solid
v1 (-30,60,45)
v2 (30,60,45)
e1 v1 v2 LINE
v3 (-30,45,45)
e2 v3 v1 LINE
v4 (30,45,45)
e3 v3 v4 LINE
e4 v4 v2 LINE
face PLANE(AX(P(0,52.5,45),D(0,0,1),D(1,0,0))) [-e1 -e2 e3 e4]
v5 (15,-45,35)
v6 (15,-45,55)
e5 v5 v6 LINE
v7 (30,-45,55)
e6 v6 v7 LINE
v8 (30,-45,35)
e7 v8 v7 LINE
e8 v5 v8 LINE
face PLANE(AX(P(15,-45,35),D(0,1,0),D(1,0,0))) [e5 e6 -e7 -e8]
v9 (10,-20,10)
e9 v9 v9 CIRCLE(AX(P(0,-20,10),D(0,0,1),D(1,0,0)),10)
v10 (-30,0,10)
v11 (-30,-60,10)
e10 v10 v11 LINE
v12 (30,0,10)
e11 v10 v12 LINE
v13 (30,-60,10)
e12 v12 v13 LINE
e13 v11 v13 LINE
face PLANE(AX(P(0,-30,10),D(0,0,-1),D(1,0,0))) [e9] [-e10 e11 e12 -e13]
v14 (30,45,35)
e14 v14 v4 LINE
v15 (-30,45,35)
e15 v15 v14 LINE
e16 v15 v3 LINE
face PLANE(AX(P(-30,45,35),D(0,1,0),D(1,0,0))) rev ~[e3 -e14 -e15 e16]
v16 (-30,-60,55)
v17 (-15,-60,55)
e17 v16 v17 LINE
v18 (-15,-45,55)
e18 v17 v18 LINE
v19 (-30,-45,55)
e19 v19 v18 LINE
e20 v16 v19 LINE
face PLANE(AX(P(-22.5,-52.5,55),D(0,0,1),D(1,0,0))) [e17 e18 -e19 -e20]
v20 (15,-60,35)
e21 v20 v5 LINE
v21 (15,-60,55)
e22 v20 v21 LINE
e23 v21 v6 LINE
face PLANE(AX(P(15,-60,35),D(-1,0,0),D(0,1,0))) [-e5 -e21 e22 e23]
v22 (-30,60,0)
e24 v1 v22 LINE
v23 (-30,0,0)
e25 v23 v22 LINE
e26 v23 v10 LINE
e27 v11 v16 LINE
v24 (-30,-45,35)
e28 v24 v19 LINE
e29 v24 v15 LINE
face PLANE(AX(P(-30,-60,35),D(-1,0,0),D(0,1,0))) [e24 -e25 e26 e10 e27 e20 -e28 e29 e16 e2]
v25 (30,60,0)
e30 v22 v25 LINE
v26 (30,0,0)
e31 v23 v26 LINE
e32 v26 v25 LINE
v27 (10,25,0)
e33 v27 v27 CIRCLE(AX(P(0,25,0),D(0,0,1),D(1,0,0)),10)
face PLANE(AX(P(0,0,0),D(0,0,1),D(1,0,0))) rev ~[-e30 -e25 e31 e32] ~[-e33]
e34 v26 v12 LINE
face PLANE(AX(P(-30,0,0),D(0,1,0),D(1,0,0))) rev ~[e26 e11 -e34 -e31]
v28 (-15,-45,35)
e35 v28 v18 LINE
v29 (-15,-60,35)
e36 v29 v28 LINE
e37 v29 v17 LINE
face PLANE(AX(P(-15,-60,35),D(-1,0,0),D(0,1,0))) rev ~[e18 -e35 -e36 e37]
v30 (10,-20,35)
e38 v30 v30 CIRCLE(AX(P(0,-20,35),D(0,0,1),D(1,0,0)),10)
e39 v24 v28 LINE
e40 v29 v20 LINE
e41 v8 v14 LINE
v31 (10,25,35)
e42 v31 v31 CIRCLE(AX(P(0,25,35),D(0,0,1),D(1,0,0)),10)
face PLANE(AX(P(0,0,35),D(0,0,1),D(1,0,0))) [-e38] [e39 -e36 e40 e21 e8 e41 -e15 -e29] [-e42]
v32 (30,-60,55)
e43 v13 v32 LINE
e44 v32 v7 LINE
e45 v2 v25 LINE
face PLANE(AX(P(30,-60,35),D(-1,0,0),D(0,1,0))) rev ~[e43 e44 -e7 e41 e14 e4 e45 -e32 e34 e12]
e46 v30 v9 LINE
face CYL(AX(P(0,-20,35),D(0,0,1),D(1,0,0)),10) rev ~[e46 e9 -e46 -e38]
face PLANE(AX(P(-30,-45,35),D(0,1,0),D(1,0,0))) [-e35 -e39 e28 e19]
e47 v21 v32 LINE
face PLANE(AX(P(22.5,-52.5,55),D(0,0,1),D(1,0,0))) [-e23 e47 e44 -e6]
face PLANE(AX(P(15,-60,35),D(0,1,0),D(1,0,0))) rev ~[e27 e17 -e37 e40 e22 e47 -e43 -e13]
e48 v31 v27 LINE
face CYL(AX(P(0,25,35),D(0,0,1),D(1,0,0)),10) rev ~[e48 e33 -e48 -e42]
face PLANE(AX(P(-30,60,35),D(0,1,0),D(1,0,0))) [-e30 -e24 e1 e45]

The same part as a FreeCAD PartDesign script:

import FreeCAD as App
import Part
import Sketcher

V = App.Vector
Q = App.Units.Quantity


def add_polygon(sketch, points):
    """Adds a closed chain of lines whose ends are joined by coincident constraints."""
    first, n = sketch.GeometryCount, len(points)
    for a, b in zip(points, points[1:] + points[:1]):
        sketch.addGeometry(Part.LineSegment(App.Vector(*a, 0), App.Vector(*b, 0)), False)
    for i in range(n):
        sketch.addConstraint(Sketcher.Constraint("Coincident", first + i, 2, first + (i + 1) % n, 1))

doc = App.newDocument("Part")
body = doc.addObject("PartDesign::Body", "Body")

# Sketch on XY plane
sketch1 = body.newObject("Sketcher::SketchObject", "Sketch")
sketch1.AttachmentSupport = (doc.getObject("XY_Plane"), [""])
sketch1.MapMode = "FlatFace"
add_polygon(sketch1, [(-30, 60), (-30, -60), (30, -60), (30, 60)])  # lines 0-3
sketch1.addConstraint([
    Sketcher.Constraint("Vertical", 0),
    Sketcher.Constraint("Horizontal", 1),
    Sketcher.Constraint("Vertical", 2),
    Sketcher.Constraint("Horizontal", 3),
    Sketcher.Constraint("Symmetric", 0, 2, 2, 2, -1, 1),
    Sketcher.Constraint("DistanceX", 1, 1, 1, 2, Q("60 mm")),
    Sketcher.Constraint("DistanceY", 0, 2, 0, 1, Q("120 mm")),
])
pad1 = body.newObject("PartDesign::Pad", "Pad")
pad1.Profile = sketch1
pad1.Length = 35

# Sketch on XY plane
sketch2 = body.newObject("Sketcher::SketchObject", "Sketch001")
sketch2.AttachmentSupport = (doc.getObject("XY_Plane"), [""])
sketch2.MapMode = "FlatFace"
sketch2.AttachmentOffset = App.Placement(V(0, 0, 35), App.Rotation())
add_polygon(sketch2, [(-30, 60), (-30, 45), (30, 45), (30, 60)])  # lines 0-3
sketch2.addConstraint([
    Sketcher.Constraint("Vertical", 0),
    Sketcher.Constraint("Horizontal", 1),
    Sketcher.Constraint("Vertical", 2),
    Sketcher.Constraint("Horizontal", 3),
    Sketcher.Constraint("DistanceX", 1, 1, 1, 2, Q("60 mm")),
    Sketcher.Constraint("DistanceY", 0, 2, 0, 1, Q("15 mm")),
    Sketcher.Constraint("DistanceX", 0, 2, -1, 1, Q("30 mm")),
    Sketcher.Constraint("DistanceY", -1, 1, 0, 2, Q("45 mm")),
])
pad2 = body.newObject("PartDesign::Pad", "Pad001")
pad2.Profile = sketch2
pad2.Length = 10

# Sketch on XY plane
sketch3 = body.newObject("Sketcher::SketchObject", "Sketch002")
sketch3.AttachmentSupport = (doc.getObject("XY_Plane"), [""])
sketch3.MapMode = "FlatFace"
add_polygon(sketch3, [(-30, -60), (-30, 0), (30, 0), (30, -60)])  # lines 0-3
sketch3.addConstraint([
    Sketcher.Constraint("Vertical", 0),
    Sketcher.Constraint("Horizontal", 1),
    Sketcher.Constraint("Vertical", 2),
    Sketcher.Constraint("Horizontal", 3),
    Sketcher.Constraint("Symmetric", 0, 2, 1, 2, -1, 1),
    Sketcher.Constraint("Equal", 3, 0),
    Sketcher.Constraint("DistanceX", 1, 1, 1, 2, Q("60 mm")),
])
pocket1 = body.newObject("PartDesign::Pocket", "Pocket")
pocket1.Profile = sketch3
pocket1.Length = 10
pocket1.Reversed = True

# Sketch on XY plane
sketch4 = body.newObject("Sketcher::SketchObject", "Sketch003")
sketch4.AttachmentSupport = (doc.getObject("XY_Plane"), [""])
sketch4.MapMode = "FlatFace"
sketch4.AttachmentOffset = App.Placement(V(0, 0, 35), App.Rotation())
add_polygon(sketch4, [(-30, -45), (-30, -60), (-15, -60), (-15, -45)])  # lines 0-3
sketch4.addConstraint([
    Sketcher.Constraint("Vertical", 0),
    Sketcher.Constraint("Horizontal", 1),
    Sketcher.Constraint("Vertical", 2),
    Sketcher.Constraint("Horizontal", 3),
    Sketcher.Constraint("Equal", 3, 0),
    Sketcher.Constraint("DistanceX", 1, 1, 1, 2, Q("15 mm")),
    Sketcher.Constraint("DistanceX", 0, 2, -1, 1, Q("30 mm")),
    Sketcher.Constraint("DistanceY", 0, 2, -1, 1, Q("60 mm")),
])
pad3 = body.newObject("PartDesign::Pad", "Pad002")
pad3.Profile = sketch4
pad3.Length = 20

# Sketch on XY plane
sketch5 = body.newObject("Sketcher::SketchObject", "Sketch004")
sketch5.AttachmentSupport = (doc.getObject("XY_Plane"), [""])
sketch5.MapMode = "FlatFace"
sketch5.AttachmentOffset = App.Placement(V(0, 0, 35), App.Rotation())
add_polygon(sketch5, [(15, -45), (15, -60), (30, -60), (30, -45)])  # lines 0-3
sketch5.addConstraint([
    Sketcher.Constraint("Vertical", 0),
    Sketcher.Constraint("Horizontal", 1),
    Sketcher.Constraint("Vertical", 2),
    Sketcher.Constraint("Horizontal", 3),
    Sketcher.Constraint("Equal", 3, 0),
    Sketcher.Constraint("DistanceX", 1, 1, 1, 2, Q("15 mm")),
    Sketcher.Constraint("DistanceX", -1, 1, 0, 2, Q("15 mm")),
    Sketcher.Constraint("DistanceY", 0, 2, -1, 1, Q("60 mm")),
])
pad4 = body.newObject("PartDesign::Pad", "Pad003")
pad4.Profile = sketch5
pad4.Length = 20

# Sketch on XY plane
sketch6 = body.newObject("Sketcher::SketchObject", "Sketch005")
sketch6.AttachmentSupport = (doc.getObject("XY_Plane"), [""])
sketch6.MapMode = "FlatFace"
sketch6.AttachmentOffset = App.Placement(V(0, 0, 35), App.Rotation())
sketch6.addGeometry(Part.Circle(V(0, 25, 0), V(0, 0, 1), 10), False)
sketch6.addConstraint([
    Sketcher.Constraint("PointOnObject", 0, 3, -2),
    Sketcher.Constraint("Diameter", 0, Q("20 mm")),
    Sketcher.Constraint("DistanceY", -1, 1, 0, 3, Q("25 mm")),
])
pocket2 = body.newObject("PartDesign::Pocket", "Pocket001")
pocket2.Profile = sketch6
pocket2.Length = 72.9

# Sketch on XY plane
sketch7 = body.newObject("Sketcher::SketchObject", "Sketch006")
sketch7.AttachmentSupport = (doc.getObject("XY_Plane"), [""])
sketch7.MapMode = "FlatFace"
sketch7.AttachmentOffset = App.Placement(V(0, 0, 35), App.Rotation())
sketch7.addGeometry(Part.Circle(V(0, -20, 0), V(0, 0, 1), 10), False)
sketch7.addConstraint([
    Sketcher.Constraint("PointOnObject", 0, 3, -2),
    Sketcher.Constraint("Diameter", 0, Q("20 mm")),
    Sketcher.Constraint("DistanceY", 0, 3, -1, 1, Q("20 mm")),
])
pocket3 = body.newObject("PartDesign::Pocket", "Pocket002")
pocket3.Profile = sketch7
pocket3.Length = 66.7

doc.recompute()
